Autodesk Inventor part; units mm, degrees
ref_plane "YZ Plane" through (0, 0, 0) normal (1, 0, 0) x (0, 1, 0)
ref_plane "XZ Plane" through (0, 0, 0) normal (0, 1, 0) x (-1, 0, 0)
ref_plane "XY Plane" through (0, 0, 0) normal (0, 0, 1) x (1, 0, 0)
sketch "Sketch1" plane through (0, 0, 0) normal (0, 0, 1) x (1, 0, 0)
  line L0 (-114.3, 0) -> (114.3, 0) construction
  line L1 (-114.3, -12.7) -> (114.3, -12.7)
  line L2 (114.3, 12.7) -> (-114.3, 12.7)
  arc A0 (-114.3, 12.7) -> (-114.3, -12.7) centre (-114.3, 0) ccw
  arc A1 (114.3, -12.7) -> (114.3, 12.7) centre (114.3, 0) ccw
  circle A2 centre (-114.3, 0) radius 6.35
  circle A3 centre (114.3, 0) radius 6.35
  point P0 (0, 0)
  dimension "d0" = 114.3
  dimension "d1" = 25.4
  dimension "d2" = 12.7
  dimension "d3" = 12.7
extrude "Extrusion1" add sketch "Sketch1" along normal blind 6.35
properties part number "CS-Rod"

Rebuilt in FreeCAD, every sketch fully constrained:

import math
import FreeCAD as App
import Part
import Sketcher
Q = App.Units.Quantity

doc = App.newDocument("Part")
body = doc.addObject("PartDesign::Body", "Body")

# Sketch on XY plane
sketch1 = body.newObject("Sketcher::SketchObject", "Sketch")
sketch1.AttachmentSupport = (doc.getObject("XY_Plane"), [""])
sketch1.MapMode = "FlatFace"
sketch1.addGeometry([
    Part.ArcOfCircle(Part.Circle(App.Vector(-114, 0, 0), App.Vector(0, 0, 1), 13), math.radians(90), math.radians(270)),  # 0
    Part.LineSegment(App.Vector(-114, -13, 0), App.Vector(114, -13, 0)),  # 1
    Part.ArcOfCircle(Part.Circle(App.Vector(114, 0, 0), App.Vector(0, 0, 1), 13), math.radians(-90), math.radians(90)),  # 2
    Part.LineSegment(App.Vector(114, 13, 0), App.Vector(-114, 13, 0)),  # 3
    Part.Circle(App.Vector(-114, 0, 0), App.Vector(0, 0, 1), 6),  # 4
    Part.Circle(App.Vector(114, 0, 0), App.Vector(0, 0, 1), 6),  # 5
], False)
sketch1.addConstraint([
    Sketcher.Constraint("Tangent", 0, 2, 1, 1),
    Sketcher.Constraint("Tangent", 1, 2, 2, 1),
    Sketcher.Constraint("Tangent", 2, 2, 3, 1),
    Sketcher.Constraint("Tangent", 3, 2, 0, 1),
    Sketcher.Constraint("Horizontal", 1),
    Sketcher.Constraint("Horizontal", 3),
    Sketcher.Constraint("Coincident", 4, 3, 0, 3),
    Sketcher.Constraint("Coincident", 5, 3, 2, 3),
    Sketcher.Constraint("Equal", 4, 5),
    Sketcher.Constraint("Symmetric", 0, 3, 2, 3, -1, 1),
    Sketcher.Constraint("Diameter", 4, Q("0.5 in")),
    Sketcher.Constraint("Radius", 0, Q("0.5 in")),
    Sketcher.Constraint("DistanceX", 0, 3, -1, 1, Q("4.5 in")),
])
pad1 = body.newObject("PartDesign::Pad", "Pad")
pad1.Profile = sketch1
pad1.Length = Q("0.25 in")

doc.recompute()
